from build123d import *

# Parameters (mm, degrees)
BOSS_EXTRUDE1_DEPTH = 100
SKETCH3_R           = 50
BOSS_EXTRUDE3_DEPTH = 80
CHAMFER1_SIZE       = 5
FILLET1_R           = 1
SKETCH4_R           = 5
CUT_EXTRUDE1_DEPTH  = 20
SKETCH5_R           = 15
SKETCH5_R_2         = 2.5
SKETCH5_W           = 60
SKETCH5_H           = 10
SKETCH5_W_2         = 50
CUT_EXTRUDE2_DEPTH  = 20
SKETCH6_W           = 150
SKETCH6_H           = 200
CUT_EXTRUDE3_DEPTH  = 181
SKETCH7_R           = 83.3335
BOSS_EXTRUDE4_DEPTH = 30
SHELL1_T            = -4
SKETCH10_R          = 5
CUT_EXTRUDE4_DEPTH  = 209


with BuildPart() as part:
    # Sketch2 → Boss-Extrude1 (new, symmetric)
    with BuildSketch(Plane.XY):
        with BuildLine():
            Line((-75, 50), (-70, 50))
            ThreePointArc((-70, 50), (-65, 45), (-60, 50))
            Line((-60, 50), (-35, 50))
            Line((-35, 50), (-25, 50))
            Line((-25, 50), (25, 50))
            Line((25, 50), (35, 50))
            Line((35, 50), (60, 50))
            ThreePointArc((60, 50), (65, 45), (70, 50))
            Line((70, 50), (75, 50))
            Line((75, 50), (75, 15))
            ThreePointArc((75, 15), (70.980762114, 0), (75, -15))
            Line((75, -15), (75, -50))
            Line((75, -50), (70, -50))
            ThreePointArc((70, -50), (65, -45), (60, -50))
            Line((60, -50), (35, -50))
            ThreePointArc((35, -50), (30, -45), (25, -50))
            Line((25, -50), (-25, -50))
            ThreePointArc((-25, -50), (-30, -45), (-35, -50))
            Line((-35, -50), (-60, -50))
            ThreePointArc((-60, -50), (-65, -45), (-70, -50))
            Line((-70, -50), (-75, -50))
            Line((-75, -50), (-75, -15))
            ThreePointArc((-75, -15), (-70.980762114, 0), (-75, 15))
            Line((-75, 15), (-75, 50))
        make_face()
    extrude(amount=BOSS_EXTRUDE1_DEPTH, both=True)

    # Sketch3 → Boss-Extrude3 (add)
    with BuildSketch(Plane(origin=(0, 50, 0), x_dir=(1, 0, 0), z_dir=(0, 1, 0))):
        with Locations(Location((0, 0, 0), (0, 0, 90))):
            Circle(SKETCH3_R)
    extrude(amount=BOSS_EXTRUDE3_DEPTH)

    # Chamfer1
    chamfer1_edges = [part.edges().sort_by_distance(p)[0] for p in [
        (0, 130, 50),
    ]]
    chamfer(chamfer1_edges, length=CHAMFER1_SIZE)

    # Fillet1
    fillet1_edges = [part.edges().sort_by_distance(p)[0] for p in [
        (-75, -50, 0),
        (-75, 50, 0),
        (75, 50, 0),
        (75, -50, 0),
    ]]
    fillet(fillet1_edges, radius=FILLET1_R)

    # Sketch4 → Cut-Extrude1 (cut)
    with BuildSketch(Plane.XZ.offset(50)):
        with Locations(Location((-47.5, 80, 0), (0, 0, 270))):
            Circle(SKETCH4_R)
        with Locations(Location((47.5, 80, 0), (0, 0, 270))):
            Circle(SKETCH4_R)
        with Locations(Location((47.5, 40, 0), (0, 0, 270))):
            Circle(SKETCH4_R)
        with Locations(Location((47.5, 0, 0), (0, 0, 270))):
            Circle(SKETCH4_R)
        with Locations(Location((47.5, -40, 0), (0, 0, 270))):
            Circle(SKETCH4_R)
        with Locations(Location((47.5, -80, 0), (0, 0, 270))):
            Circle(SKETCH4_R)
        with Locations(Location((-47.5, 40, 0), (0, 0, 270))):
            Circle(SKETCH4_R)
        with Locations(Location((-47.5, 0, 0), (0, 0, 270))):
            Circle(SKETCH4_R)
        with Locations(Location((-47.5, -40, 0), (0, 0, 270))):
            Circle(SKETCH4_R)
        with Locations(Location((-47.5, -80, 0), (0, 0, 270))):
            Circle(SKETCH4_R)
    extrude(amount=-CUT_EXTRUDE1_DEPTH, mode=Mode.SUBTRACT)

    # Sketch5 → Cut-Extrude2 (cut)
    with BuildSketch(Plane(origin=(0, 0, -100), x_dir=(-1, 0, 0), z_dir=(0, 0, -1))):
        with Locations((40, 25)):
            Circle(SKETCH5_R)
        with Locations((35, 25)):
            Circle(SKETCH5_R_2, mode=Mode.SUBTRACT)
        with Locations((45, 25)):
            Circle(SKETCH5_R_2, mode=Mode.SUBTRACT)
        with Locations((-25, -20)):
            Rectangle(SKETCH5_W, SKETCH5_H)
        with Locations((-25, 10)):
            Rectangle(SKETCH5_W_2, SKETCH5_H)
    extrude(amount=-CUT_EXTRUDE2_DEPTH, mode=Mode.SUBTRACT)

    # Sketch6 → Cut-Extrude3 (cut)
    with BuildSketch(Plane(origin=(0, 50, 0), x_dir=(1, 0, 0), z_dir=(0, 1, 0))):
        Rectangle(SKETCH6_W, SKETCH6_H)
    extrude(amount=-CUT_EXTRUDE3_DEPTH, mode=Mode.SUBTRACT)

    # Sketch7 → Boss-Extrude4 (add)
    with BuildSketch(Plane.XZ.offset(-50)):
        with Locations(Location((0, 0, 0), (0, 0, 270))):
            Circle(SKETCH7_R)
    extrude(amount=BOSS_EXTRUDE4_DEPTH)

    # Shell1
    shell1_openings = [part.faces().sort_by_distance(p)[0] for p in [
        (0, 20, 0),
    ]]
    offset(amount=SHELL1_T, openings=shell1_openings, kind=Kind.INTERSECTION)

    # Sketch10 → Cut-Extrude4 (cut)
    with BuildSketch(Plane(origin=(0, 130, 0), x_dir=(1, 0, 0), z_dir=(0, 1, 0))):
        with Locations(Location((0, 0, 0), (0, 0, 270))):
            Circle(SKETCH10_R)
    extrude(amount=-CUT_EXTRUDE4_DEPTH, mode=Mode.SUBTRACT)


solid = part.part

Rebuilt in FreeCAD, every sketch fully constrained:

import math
import FreeCAD as App
import Part
import Sketcher


def edges_at(feature, points):
    """Names of the edges that pass closest to the given points."""
    edges = feature.Shape.Edges
    near = lambda p: min(range(len(edges)), key=lambda i: edges[i].distToShape(Part.Vertex(*p))[0])
    return sorted({f"Edge{near(p) + 1}" for p in points})


def faces_at(feature, points):
    """Names of the faces that lie closest to the given points."""
    faces = feature.Shape.Faces
    near = lambda p: min(range(len(faces)), key=lambda i: faces[i].distToShape(Part.Vertex(*p))[0])
    return sorted({f"Face{near(p) + 1}" for p in points})

doc = App.newDocument("Part")
body = doc.addObject("PartDesign::Body", "Body")

# Sketch on XY plane
sketch1 = doc.addObject("Sketcher::SketchObject", "Sketch")
body.addObject(sketch1)
sketch1.AttachmentSupport = (doc.XY_Plane, [""])
sketch1.MapMode = "FlatFace"
sketch1.addGeometry([
    Part.LineSegment(App.Vector(-70, 50, 0), App.Vector(-75, 50, 0)),  # 0
    Part.LineSegment(App.Vector(-75, 50, 0), App.Vector(-75, 15, 0)),  # 1
    Part.ArcOfCircle(Part.Circle(App.Vector(-101, 0, 0), App.Vector(0, 0, 1), 30), math.radians(-30), math.radians(30)),  # 2
    Part.LineSegment(App.Vector(-75, -15, 0), App.Vector(-75, -50, 0)),  # 3
    Part.LineSegment(App.Vector(-75, -50, 0), App.Vector(-70, -50, 0)),  # 4
    Part.ArcOfCircle(Part.Circle(App.Vector(-65, -50, 0), App.Vector(0, 0, 1), 5), math.radians(0), math.radians(180)),  # 5
    Part.LineSegment(App.Vector(-60, -50, 0), App.Vector(-35, -50, 0)),  # 6
    Part.ArcOfCircle(Part.Circle(App.Vector(-30, -50, 0), App.Vector(0, 0, 1), 5), math.radians(0), math.radians(180)),  # 7
    Part.LineSegment(App.Vector(-25, -50, 0), App.Vector(25, -50, 0)),  # 8
    Part.ArcOfCircle(Part.Circle(App.Vector(30, -50, 0), App.Vector(0, 0, 1), 5), math.radians(0), math.radians(180)),  # 9
    Part.LineSegment(App.Vector(35, -50, 0), App.Vector(60, -50, 0)),  # 10
    Part.ArcOfCircle(Part.Circle(App.Vector(65, -50, 0), App.Vector(0, 0, 1), 5), math.radians(0), math.radians(180)),  # 11
    Part.LineSegment(App.Vector(70, -50, 0), App.Vector(75, -50, 0)),  # 12
    Part.LineSegment(App.Vector(75, -50, 0), App.Vector(75, -15, 0)),  # 13
    Part.ArcOfCircle(Part.Circle(App.Vector(101, 0, 0), App.Vector(0, 0, 1), 30), math.radians(150), math.radians(210)),  # 14
    Part.LineSegment(App.Vector(75, 15, 0), App.Vector(75, 50, 0)),  # 15
    Part.LineSegment(App.Vector(75, 50, 0), App.Vector(70, 50, 0)),  # 16
    Part.ArcOfCircle(Part.Circle(App.Vector(65, 50, 0), App.Vector(0, 0, 1), 5), math.radians(180), math.radians(360)),  # 17
    Part.LineSegment(App.Vector(60, 50, 0), App.Vector(-60, 50, 0)),  # 18
    Part.ArcOfCircle(Part.Circle(App.Vector(-65, 50, 0), App.Vector(0, 0, 1), 5), math.radians(180), math.radians(360)),  # 19
], False)
sketch1.addConstraint([
    Sketcher.Constraint("Coincident", 0, 2, 1, 1),
    Sketcher.Constraint("Coincident", 1, 2, 2, 2),
    Sketcher.Constraint("Coincident", 2, 1, 3, 1),
    Sketcher.Constraint("Coincident", 3, 2, 4, 1),
    Sketcher.Constraint("Coincident", 4, 2, 5, 2),
    Sketcher.Constraint("Coincident", 5, 1, 6, 1),
    Sketcher.Constraint("Coincident", 6, 2, 7, 2),
    Sketcher.Constraint("Coincident", 7, 1, 8, 1),
    Sketcher.Constraint("Coincident", 8, 2, 9, 2),
    Sketcher.Constraint("Coincident", 9, 1, 10, 1),
    Sketcher.Constraint("Coincident", 10, 2, 11, 2),
    Sketcher.Constraint("Coincident", 11, 1, 12, 1),
    Sketcher.Constraint("Coincident", 12, 2, 13, 1),
    Sketcher.Constraint("Coincident", 13, 2, 14, 2),
    Sketcher.Constraint("Coincident", 14, 1, 15, 1),
    Sketcher.Constraint("Coincident", 15, 2, 16, 1),
    Sketcher.Constraint("Coincident", 16, 2, 17, 2),
    Sketcher.Constraint("Coincident", 17, 1, 18, 1),
    Sketcher.Constraint("Coincident", 18, 2, 19, 2),
    Sketcher.Constraint("Coincident", 19, 1, 0, 1),
    Sketcher.Constraint("Horizontal", 0),
    Sketcher.Constraint("Vertical", 1),
    Sketcher.Constraint("Vertical", 3),
    Sketcher.Constraint("Horizontal", 4),
    Sketcher.Constraint("Horizontal", 6),
    Sketcher.Constraint("Horizontal", 8),
    Sketcher.Constraint("Horizontal", 10),
    Sketcher.Constraint("Horizontal", 12),
    Sketcher.Constraint("Vertical", 13),
    Sketcher.Constraint("Vertical", 15),
    Sketcher.Constraint("Horizontal", 16),
    Sketcher.Constraint("Horizontal", 18),
    Sketcher.Constraint("Equal", 5, 7),
    Sketcher.Constraint("Equal", 7, 9),
    Sketcher.Constraint("Equal", 9, 11),
    Sketcher.Constraint("Equal", 2, 14),
    Sketcher.Constraint("Equal", 11, 17),
    Sketcher.Constraint("Equal", 17, 19),
    Sketcher.Constraint("Symmetric", 2, 3, 14, 3, -1, 1),
    Sketcher.Constraint("Symmetric", 5, 3, 17, 3, -1, 1),
    Sketcher.Constraint("Symmetric", 11, 3, 19, 3, -1, 1),
    Sketcher.Constraint("Symmetric", 0, 2, 12, 2, -1, 1),
    Sketcher.Constraint("Symmetric", 3, 2, 15, 2, -1, 1),
    Sketcher.Constraint("Symmetric", 7, 3, 9, 3, -2),
    Sketcher.Constraint("Symmetric", 5, 3, 11, 3, -2),
    Sketcher.Constraint("Symmetric", 3, 2, 12, 2, -2),
    Sketcher.Constraint("PointOnObject", 2, 3, -1),
    Sketcher.Constraint("Horizontal", 5, 3, 7, 3),
    Sketcher.Constraint("Horizontal", 19, 3, 0, 2),
    Sketcher.Constraint("Horizontal", 4, 2, 5, 1),
    Sketcher.Constraint("Horizontal", 6, 2, 7, 1),
    Sketcher.Constraint("Horizontal", 8, 2, 9, 1),
    Sketcher.Constraint("Horizontal", 16, 2, 17, 1),
    Sketcher.Constraint("Radius", 2, 30.0),
    Sketcher.Constraint("Radius", 5, 5.0),
    Sketcher.Constraint("DistanceX", 0, 2, 0, 1, 5.0),
    Sketcher.Constraint("DistanceX", 6, 1, 6, 2, 25.0),
    Sketcher.Constraint("DistanceX", 8, 1, 8, 2, 50.0),
    Sketcher.Constraint("DistanceY", 1, 2, 1, 1, 35.0),
    Sketcher.Constraint("DistanceY", 5, 3, -1, 1, 50.0),
])
pad1 = doc.addObject("PartDesign::Pad", "Pad")
body.addObject(pad1)
pad1.Profile = sketch1
pad1.Length = 200
pad1.Midplane = True

# Sketch on XZ plane
sketch2 = doc.addObject("Sketcher::SketchObject", "Sketch001")
body.addObject(sketch2)
sketch2.AttachmentSupport = (doc.XZ_Plane, [""])
sketch2.MapMode = "FlatFace"
sketch2.AttachmentOffset = App.Placement(App.Vector(0, 0, -50), App.Rotation())
sketch2.addGeometry(Part.Circle(App.Vector(0, 0, 0), App.Vector(0, 0, 1), 50), False)
sketch2.addConstraint([
    Sketcher.Constraint("Coincident", 0, 3, -1, 1),
    Sketcher.Constraint("Diameter", 0, 100.0),
])
pad2 = doc.addObject("PartDesign::Pad", "Pad001")
body.addObject(pad2)
pad2.Profile = sketch2
pad2.Length = 80
pad2.Reversed = True
doc.recompute()

chamfer = doc.addObject("PartDesign::Chamfer", "Chamfer")
body.addObject(chamfer)
chamfer.Base = (pad2, edges_at(pad2, [(0, 130, 50)]))
chamfer.Size = 5
doc.recompute()

fillet = doc.addObject("PartDesign::Fillet", "Fillet")
body.addObject(fillet)
fillet.Base = (chamfer, edges_at(chamfer, [
    (-75, -50, 0),
    (-75, 50, 0),
    (75, 50, 0),
    (75, -50, 0),
]))
fillet.Radius = 1

# Sketch on XZ plane
sketch3 = doc.addObject("Sketcher::SketchObject", "Sketch002")
body.addObject(sketch3)
sketch3.AttachmentSupport = (doc.XZ_Plane, [""])
sketch3.MapMode = "FlatFace"
sketch3.AttachmentOffset = App.Placement(App.Vector(0, 0, 50), App.Rotation())
sketch3.addGeometry([
    Part.Circle(App.Vector(-48, 80, 0), App.Vector(0, 0, 1), 5),  # 0
    Part.Circle(App.Vector(48, 80, 0), App.Vector(0, 0, 1), 5),  # 1
    Part.Circle(App.Vector(48, 40, 0), App.Vector(0, 0, 1), 5),  # 2
    Part.Circle(App.Vector(48, 0, 0), App.Vector(0, 0, 1), 5),  # 3
    Part.Circle(App.Vector(48, -40, 0), App.Vector(0, 0, 1), 5),  # 4
    Part.Circle(App.Vector(48, -80, 0), App.Vector(0, 0, 1), 5),  # 5
    Part.Circle(App.Vector(-48, 40, 0), App.Vector(0, 0, 1), 5),  # 6
    Part.Circle(App.Vector(-48, 0, 0), App.Vector(0, 0, 1), 5),  # 7
    Part.Circle(App.Vector(-48, -40, 0), App.Vector(0, 0, 1), 5),  # 8
    Part.Circle(App.Vector(-48, -80, 0), App.Vector(0, 0, 1), 5),  # 9
], False)
sketch3.addConstraint([
    Sketcher.Constraint("Equal", 0, 1),
    Sketcher.Constraint("Equal", 1, 2),
    Sketcher.Constraint("Equal", 2, 3),
    Sketcher.Constraint("Equal", 3, 4),
    Sketcher.Constraint("Equal", 4, 5),
    Sketcher.Constraint("Equal", 5, 6),
    Sketcher.Constraint("Equal", 6, 7),
    Sketcher.Constraint("Equal", 7, 8),
    Sketcher.Constraint("Equal", 8, 9),
    Sketcher.Constraint("Symmetric", 0, 3, 5, 3, -1, 1),
    Sketcher.Constraint("Symmetric", 4, 3, 6, 3, -1, 1),
    Sketcher.Constraint("Symmetric", 3, 3, 7, 3, -1, 1),
    Sketcher.Constraint("Symmetric", 2, 3, 8, 3, -1, 1),
    Sketcher.Constraint("Symmetric", 1, 3, 9, 3, -1, 1),
    Sketcher.Constraint("Symmetric", 0, 3, 1, 3, -2),
    Sketcher.Constraint("Symmetric", 2, 3, 6, 3, -2),
    Sketcher.Constraint("PointOnObject", 3, 3, -1),
    Sketcher.Constraint("Vertical", 1, 3, 2, 3),
    Sketcher.Constraint("Vertical", 2, 3, 3, 3),
    Sketcher.Constraint("Diameter", 0, 10.0),
    Sketcher.Constraint("DistanceY", -1, 1, 0, 3, 80.0),
    Sketcher.Constraint("DistanceY", -1, 1, 2, 3, 40.0),
    Sketcher.Constraint("DistanceX", 0, 3, 1, 3, 95.0),
])
pocket1 = doc.addObject("PartDesign::Pocket", "Pocket")
body.addObject(pocket1)
pocket1.Profile = sketch3
pocket1.Length = 20

# Sketch on XY plane
sketch4 = doc.addObject("Sketcher::SketchObject", "Sketch003")
body.addObject(sketch4)
sketch4.AttachmentSupport = (doc.XY_Plane, [""])
sketch4.MapMode = "FlatFace"
sketch4.AttachmentOffset = App.Placement(App.Vector(0, 0, -100), App.Rotation())
sketch4.addGeometry([
    Part.Circle(App.Vector(-40, 25, 0), App.Vector(0, 0, 1), 15),  # 0
    Part.Circle(App.Vector(-35, 25, 0), App.Vector(0, 0, 1), 2.5),  # 1
    Part.Circle(App.Vector(-45, 25, 0), App.Vector(0, 0, 1), 2.5),  # 2
    Part.LineSegment(App.Vector(55, -15, 0), App.Vector(55, -25, 0)),  # 3
    Part.LineSegment(App.Vector(55, -25, 0), App.Vector(-5, -25, 0)),  # 4
    Part.LineSegment(App.Vector(-5, -25, 0), App.Vector(-5, -15, 0)),  # 5
    Part.LineSegment(App.Vector(-5, -15, 0), App.Vector(55, -15, 0)),  # 6
    Part.LineSegment(App.Vector(50, 15, 0), App.Vector(50, 5, 0)),  # 7
    Part.LineSegment(App.Vector(50, 5, 0), App.Vector(0, 5, 0)),  # 8
    Part.LineSegment(App.Vector(0, 5, 0), App.Vector(0, 15, 0)),  # 9
    Part.LineSegment(App.Vector(0, 15, 0), App.Vector(50, 15, 0)),  # 10
], False)
sketch4.addConstraint([
    Sketcher.Constraint("Coincident", 3, 2, 4, 1),
    Sketcher.Constraint("Coincident", 4, 2, 5, 1),
    Sketcher.Constraint("Coincident", 5, 2, 6, 1),
    Sketcher.Constraint("Coincident", 6, 2, 3, 1),
    Sketcher.Constraint("Coincident", 7, 2, 8, 1),
    Sketcher.Constraint("Coincident", 8, 2, 9, 1),
    Sketcher.Constraint("Coincident", 9, 2, 10, 1),
    Sketcher.Constraint("Coincident", 10, 2, 7, 1),
    Sketcher.Constraint("Vertical", 3),
    Sketcher.Constraint("Horizontal", 4),
    Sketcher.Constraint("Vertical", 5),
    Sketcher.Constraint("Horizontal", 6),
    Sketcher.Constraint("Vertical", 7),
    Sketcher.Constraint("Horizontal", 8),
    Sketcher.Constraint("Vertical", 9),
    Sketcher.Constraint("Horizontal", 10),
    Sketcher.Constraint("Equal", 1, 2),
    Sketcher.Constraint("PointOnObject", 8, 2, -2),
    Sketcher.Constraint("Horizontal", 0, 3, 1, 3),
    Sketcher.Constraint("Horizontal", 1, 3, 2, 3),
    Sketcher.Constraint("Equal", 5, 7),
    Sketcher.Constraint("Diameter", 0, 30.0),
    Sketcher.Constraint("Diameter", 1, 5.0),
    Sketcher.Constraint("DistanceX", 4, 2, 4, 1, 60.0),
    Sketcher.Constraint("DistanceX", 8, 2, 8, 1, 50.0),
    Sketcher.Constraint("DistanceY", 3, 2, 3, 1, 10.0),
    Sketcher.Constraint("DistanceX", 0, 3, -1, 1, 40.0),
    Sketcher.Constraint("DistanceY", -1, 1, 0, 3, 25.0),
    Sketcher.Constraint("DistanceX", 1, 3, -1, 1, 35.0),
    Sketcher.Constraint("DistanceX", 2, 3, -1, 1, 45.0),
    Sketcher.Constraint("DistanceX", -1, 1, 3, 2, 55.0),
    Sketcher.Constraint("DistanceY", 3, 2, -1, 1, 25.0),
    Sketcher.Constraint("DistanceY", -1, 1, 7, 2, 5.0),
])
pocket2 = doc.addObject("PartDesign::Pocket", "Pocket001")
body.addObject(pocket2)
pocket2.Profile = sketch4
pocket2.Length = 20
pocket2.Reversed = True

# Sketch on XZ plane
sketch5 = doc.addObject("Sketcher::SketchObject", "Sketch004")
body.addObject(sketch5)
sketch5.AttachmentSupport = (doc.XZ_Plane, [""])
sketch5.MapMode = "FlatFace"
sketch5.AttachmentOffset = App.Placement(App.Vector(0, 0, -50), App.Rotation())
sketch5.addGeometry([
    Part.LineSegment(App.Vector(-75, -100, 0), App.Vector(-75, 100, 0)),
    Part.LineSegment(App.Vector(-75, 100, 0), App.Vector(75, 100, 0)),
    Part.LineSegment(App.Vector(75, 100, 0), App.Vector(75, -100, 0)),
    Part.LineSegment(App.Vector(75, -100, 0), App.Vector(-75, -100, 0)),
], False)
sketch5.addConstraint([
    Sketcher.Constraint("Coincident", 0, 2, 1, 1),
    Sketcher.Constraint("Coincident", 1, 2, 2, 1),
    Sketcher.Constraint("Coincident", 2, 2, 3, 1),
    Sketcher.Constraint("Coincident", 3, 2, 0, 1),
    Sketcher.Constraint("Vertical", 0),
    Sketcher.Constraint("Horizontal", 1),
    Sketcher.Constraint("Vertical", 2),
    Sketcher.Constraint("Horizontal", 3),
    Sketcher.Constraint("Symmetric", 0, 2, 2, 2, -1, 1),
    Sketcher.Constraint("DistanceX", 1, 1, 1, 2, 150.0),
    Sketcher.Constraint("DistanceY", 0, 1, 0, 2, 200.0),
])
pocket3 = doc.addObject("PartDesign::Pocket", "Pocket002")
body.addObject(pocket3)
pocket3.Profile = sketch5
pocket3.Length = 181
pocket3.Reversed = True

# Sketch on XZ plane
sketch6 = doc.addObject("Sketcher::SketchObject", "Sketch005")
body.addObject(sketch6)
sketch6.AttachmentSupport = (doc.XZ_Plane, [""])
sketch6.MapMode = "FlatFace"
sketch6.AttachmentOffset = App.Placement(App.Vector(0, 0, -50), App.Rotation())
sketch6.addGeometry(Part.Circle(App.Vector(0, 0, 0), App.Vector(0, 0, 1), 83), False)
sketch6.addConstraint([
    Sketcher.Constraint("Coincident", 0, 3, -1, 1),
    Sketcher.Constraint("Diameter", 0, 166.667),
])
pad3 = doc.addObject("PartDesign::Pad", "Pad002")
body.addObject(pad3)
pad3.Profile = sketch6
pad3.Length = 30
doc.recompute()

thickness = doc.addObject("PartDesign::Thickness", "Thickness")
body.addObject(thickness)
thickness.Base = (pad3, faces_at(pad3, [(0, 20, 0)]))
thickness.Value = 4
thickness.Reversed = True
thickness.Join = "Intersection"

# Sketch on XZ plane
sketch7 = doc.addObject("Sketcher::SketchObject", "Sketch006")
body.addObject(sketch7)
sketch7.AttachmentSupport = (doc.XZ_Plane, [""])
sketch7.MapMode = "FlatFace"
sketch7.AttachmentOffset = App.Placement(App.Vector(0, 0, -130), App.Rotation())
sketch7.addGeometry(Part.Circle(App.Vector(0, 0, 0), App.Vector(0, 0, 1), 5), False)
sketch7.addConstraint([
    Sketcher.Constraint("Coincident", 0, 3, -1, 1),
    Sketcher.Constraint("Diameter", 0, 10.0),
])
pocket4 = doc.addObject("PartDesign::Pocket", "Pocket003")
body.addObject(pocket4)
pocket4.Profile = sketch7
pocket4.Length = 209
pocket4.Reversed = True

doc.recompute()
